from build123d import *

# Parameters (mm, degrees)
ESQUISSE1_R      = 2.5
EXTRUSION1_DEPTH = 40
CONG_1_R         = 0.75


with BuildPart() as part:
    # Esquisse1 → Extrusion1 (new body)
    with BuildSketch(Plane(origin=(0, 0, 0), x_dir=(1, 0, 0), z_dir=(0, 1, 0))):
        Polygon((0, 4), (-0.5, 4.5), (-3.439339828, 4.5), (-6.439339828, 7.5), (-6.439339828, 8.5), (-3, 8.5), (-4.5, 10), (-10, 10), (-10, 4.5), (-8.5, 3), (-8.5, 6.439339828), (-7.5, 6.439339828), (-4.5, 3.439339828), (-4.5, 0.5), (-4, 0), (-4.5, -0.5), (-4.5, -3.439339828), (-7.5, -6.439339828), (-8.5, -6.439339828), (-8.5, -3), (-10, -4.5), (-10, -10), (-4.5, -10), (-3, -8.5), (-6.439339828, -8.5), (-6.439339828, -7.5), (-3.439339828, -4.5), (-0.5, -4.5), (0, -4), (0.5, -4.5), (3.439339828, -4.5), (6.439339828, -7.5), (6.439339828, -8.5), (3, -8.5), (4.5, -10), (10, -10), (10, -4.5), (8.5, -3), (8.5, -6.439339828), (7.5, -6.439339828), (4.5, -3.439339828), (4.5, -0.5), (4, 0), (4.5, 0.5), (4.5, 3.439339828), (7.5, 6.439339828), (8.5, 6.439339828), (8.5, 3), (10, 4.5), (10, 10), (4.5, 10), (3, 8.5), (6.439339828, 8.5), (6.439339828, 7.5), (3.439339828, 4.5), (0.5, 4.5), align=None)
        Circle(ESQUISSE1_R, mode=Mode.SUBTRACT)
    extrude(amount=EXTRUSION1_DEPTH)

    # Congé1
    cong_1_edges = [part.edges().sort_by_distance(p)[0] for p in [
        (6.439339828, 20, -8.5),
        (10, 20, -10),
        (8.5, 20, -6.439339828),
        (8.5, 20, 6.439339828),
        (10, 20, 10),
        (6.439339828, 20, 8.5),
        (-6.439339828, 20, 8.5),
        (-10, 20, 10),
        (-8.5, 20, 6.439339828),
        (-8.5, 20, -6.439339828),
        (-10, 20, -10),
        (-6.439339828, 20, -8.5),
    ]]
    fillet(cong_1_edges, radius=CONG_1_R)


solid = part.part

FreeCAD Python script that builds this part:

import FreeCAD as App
import Part
import Sketcher
from FreeCAD import Vector
Q = App.Units.Quantity


def edges_at(feature, points):
    """Names of the edges that pass closest to the given points."""
    edges = feature.Shape.Edges
    near = lambda p: min(range(len(edges)), key=lambda i: edges[i].distToShape(Part.Vertex(*p))[0])
    return sorted({f"Edge{near(p) + 1}" for p in points})

doc = App.newDocument("Part")
body = doc.addObject("PartDesign::Body", "Body")

sketch1 = body.newObject("Sketcher::SketchObject", "Sketch")
sketch1.AttachmentSupport = (doc.getObject("XZ_Plane"), [""])
sketch1.MapMode = "FlatFace"
sketch1.addGeometry([
    Part.LineSegment(Vector(0, -4, 0), Vector(-0.5, -4.5, 0)),
    Part.LineSegment(Vector(-0.5, -4.5, 0), Vector(-3.4, -4.5, 0)),
    Part.LineSegment(Vector(-3.4, -4.5, 0), Vector(-6.4, -7.5, 0)),
    Part.LineSegment(Vector(-6.4, -7.5, 0), Vector(-6.4, -8.5, 0)),
    Part.LineSegment(Vector(-6.4, -8.5, 0), Vector(-3, -8.5, 0)),
    Part.LineSegment(Vector(-3, -8.5, 0), Vector(-4.5, -10, 0)),
    Part.LineSegment(Vector(-4.5, -10, 0), Vector(-10, -10, 0)),
    Part.LineSegment(Vector(-10, -10, 0), Vector(-10, -4.5, 0)),
    Part.LineSegment(Vector(-10, -4.5, 0), Vector(-8.5, -3, 0)),
    Part.LineSegment(Vector(-8.5, -3, 0), Vector(-8.5, -6.4, 0)),
    Part.LineSegment(Vector(-8.5, -6.4, 0), Vector(-7.5, -6.4, 0)),
    Part.LineSegment(Vector(-7.5, -6.4, 0), Vector(-4.5, -3.4, 0)),
    Part.LineSegment(Vector(-4.5, -3.4, 0), Vector(-4.5, -0.5, 0)),
    Part.LineSegment(Vector(-4.5, -0.5, 0), Vector(-4, 0, 0)),
    Part.LineSegment(Vector(-4, 0, 0), Vector(-4.5, 0.5, 0)),
    Part.LineSegment(Vector(-4.5, 0.5, 0), Vector(-4.5, 3.4, 0)),
    Part.LineSegment(Vector(-4.5, 3.4, 0), Vector(-7.5, 6.4, 0)),
    Part.LineSegment(Vector(-7.5, 6.4, 0), Vector(-8.5, 6.4, 0)),
    Part.LineSegment(Vector(-8.5, 6.4, 0), Vector(-8.5, 3, 0)),
    Part.LineSegment(Vector(-8.5, 3, 0), Vector(-10, 4.5, 0)),
    Part.LineSegment(Vector(-10, 4.5, 0), Vector(-10, 10, 0)),
    Part.LineSegment(Vector(-10, 10, 0), Vector(-4.5, 10, 0)),
    Part.LineSegment(Vector(-4.5, 10, 0), Vector(-3, 8.5, 0)),
    Part.LineSegment(Vector(-3, 8.5, 0), Vector(-6.4, 8.5, 0)),
    Part.LineSegment(Vector(-6.4, 8.5, 0), Vector(-6.4, 7.5, 0)),
    Part.LineSegment(Vector(-6.4, 7.5, 0), Vector(-3.4, 4.5, 0)),
    Part.LineSegment(Vector(-3.4, 4.5, 0), Vector(-0.5, 4.5, 0)),
    Part.LineSegment(Vector(-0.5, 4.5, 0), Vector(0, 4, 0)),
    Part.LineSegment(Vector(0, 4, 0), Vector(0.5, 4.5, 0)),
    Part.LineSegment(Vector(0.5, 4.5, 0), Vector(3.4, 4.5, 0)),
    Part.LineSegment(Vector(3.4, 4.5, 0), Vector(6.4, 7.5, 0)),
    Part.LineSegment(Vector(6.4, 7.5, 0), Vector(6.4, 8.5, 0)),
    Part.LineSegment(Vector(6.4, 8.5, 0), Vector(3, 8.5, 0)),
    Part.LineSegment(Vector(3, 8.5, 0), Vector(4.5, 10, 0)),
    Part.LineSegment(Vector(4.5, 10, 0), Vector(10, 10, 0)),
    Part.LineSegment(Vector(10, 10, 0), Vector(10, 4.5, 0)),
    Part.LineSegment(Vector(10, 4.5, 0), Vector(8.5, 3, 0)),
    Part.LineSegment(Vector(8.5, 3, 0), Vector(8.5, 6.4, 0)),
    Part.LineSegment(Vector(8.5, 6.4, 0), Vector(7.5, 6.4, 0)),
    Part.LineSegment(Vector(7.5, 6.4, 0), Vector(4.5, 3.4, 0)),
    Part.LineSegment(Vector(4.5, 3.4, 0), Vector(4.5, 0.5, 0)),
    Part.LineSegment(Vector(4.5, 0.5, 0), Vector(4, 0, 0)),
    Part.LineSegment(Vector(4, 0, 0), Vector(4.5, -0.5, 0)),
    Part.LineSegment(Vector(4.5, -0.5, 0), Vector(4.5, -3.4, 0)),
    Part.LineSegment(Vector(4.5, -3.4, 0), Vector(7.5, -6.4, 0)),
    Part.LineSegment(Vector(7.5, -6.4, 0), Vector(8.5, -6.4, 0)),
    Part.LineSegment(Vector(8.5, -6.4, 0), Vector(8.5, -3, 0)),
    Part.LineSegment(Vector(8.5, -3, 0), Vector(10, -4.5, 0)),
    Part.LineSegment(Vector(10, -4.5, 0), Vector(10, -10, 0)),
    Part.LineSegment(Vector(10, -10, 0), Vector(4.5, -10, 0)),
    Part.LineSegment(Vector(4.5, -10, 0), Vector(3, -8.5, 0)),
    Part.LineSegment(Vector(3, -8.5, 0), Vector(6.4, -8.5, 0)),
    Part.LineSegment(Vector(6.4, -8.5, 0), Vector(6.4, -7.5, 0)),
    Part.LineSegment(Vector(6.4, -7.5, 0), Vector(3.4, -4.5, 0)),
    Part.LineSegment(Vector(3.4, -4.5, 0), Vector(0.5, -4.5, 0)),
    Part.LineSegment(Vector(0.5, -4.5, 0), Vector(0, -4, 0)),
    Part.Circle(Vector(0, 0, 0), Vector(0, 0, 1), 2.5),
], False)
sketch1.addConstraint([
    Sketcher.Constraint("Coincident", 0, 2, 1, 1),
    Sketcher.Constraint("Coincident", 1, 2, 2, 1),
    Sketcher.Constraint("Coincident", 2, 2, 3, 1),
    Sketcher.Constraint("Coincident", 3, 2, 4, 1),
    Sketcher.Constraint("Coincident", 4, 2, 5, 1),
    Sketcher.Constraint("Coincident", 5, 2, 6, 1),
    Sketcher.Constraint("Coincident", 6, 2, 7, 1),
    Sketcher.Constraint("Coincident", 7, 2, 8, 1),
    Sketcher.Constraint("Coincident", 8, 2, 9, 1),
    Sketcher.Constraint("Coincident", 9, 2, 10, 1),
    Sketcher.Constraint("Coincident", 10, 2, 11, 1),
    Sketcher.Constraint("Coincident", 11, 2, 12, 1),
    Sketcher.Constraint("Coincident", 12, 2, 13, 1),
    Sketcher.Constraint("Coincident", 13, 2, 14, 1),
    Sketcher.Constraint("Coincident", 14, 2, 15, 1),
    Sketcher.Constraint("Coincident", 15, 2, 16, 1),
    Sketcher.Constraint("Coincident", 16, 2, 17, 1),
    Sketcher.Constraint("Coincident", 17, 2, 18, 1),
    Sketcher.Constraint("Coincident", 18, 2, 19, 1),
    Sketcher.Constraint("Coincident", 19, 2, 20, 1),
    Sketcher.Constraint("Coincident", 20, 2, 21, 1),
    Sketcher.Constraint("Coincident", 21, 2, 22, 1),
    Sketcher.Constraint("Coincident", 22, 2, 23, 1),
    Sketcher.Constraint("Coincident", 23, 2, 24, 1),
    Sketcher.Constraint("Coincident", 24, 2, 25, 1),
    Sketcher.Constraint("Coincident", 25, 2, 26, 1),
    Sketcher.Constraint("Coincident", 26, 2, 27, 1),
    Sketcher.Constraint("Coincident", 27, 2, 28, 1),
    Sketcher.Constraint("Coincident", 28, 2, 29, 1),
    Sketcher.Constraint("Coincident", 29, 2, 30, 1),
    Sketcher.Constraint("Coincident", 30, 2, 31, 1),
    Sketcher.Constraint("Coincident", 31, 2, 32, 1),
    Sketcher.Constraint("Coincident", 32, 2, 33, 1),
    Sketcher.Constraint("Coincident", 33, 2, 34, 1),
    Sketcher.Constraint("Coincident", 34, 2, 35, 1),
    Sketcher.Constraint("Coincident", 35, 2, 36, 1),
    Sketcher.Constraint("Coincident", 36, 2, 37, 1),
    Sketcher.Constraint("Coincident", 37, 2, 38, 1),
    Sketcher.Constraint("Coincident", 38, 2, 39, 1),
    Sketcher.Constraint("Coincident", 39, 2, 40, 1),
    Sketcher.Constraint("Coincident", 40, 2, 41, 1),
    Sketcher.Constraint("Coincident", 41, 2, 42, 1),
    Sketcher.Constraint("Coincident", 42, 2, 43, 1),
    Sketcher.Constraint("Coincident", 43, 2, 44, 1),
    Sketcher.Constraint("Coincident", 44, 2, 45, 1),
    Sketcher.Constraint("Coincident", 45, 2, 46, 1),
    Sketcher.Constraint("Coincident", 46, 2, 47, 1),
    Sketcher.Constraint("Coincident", 47, 2, 48, 1),
    Sketcher.Constraint("Coincident", 48, 2, 49, 1),
    Sketcher.Constraint("Coincident", 49, 2, 50, 1),
    Sketcher.Constraint("Coincident", 50, 2, 51, 1),
    Sketcher.Constraint("Coincident", 51, 2, 52, 1),
    Sketcher.Constraint("Coincident", 52, 2, 53, 1),
    Sketcher.Constraint("Coincident", 53, 2, 54, 1),
    Sketcher.Constraint("Coincident", 54, 2, 55, 1),
    Sketcher.Constraint("Coincident", 55, 2, 0, 1),
    Sketcher.Constraint("Horizontal", 1),
    Sketcher.Constraint("Vertical", 3),
    Sketcher.Constraint("Horizontal", 4),
    Sketcher.Constraint("Horizontal", 6),
    Sketcher.Constraint("Vertical", 7),
    Sketcher.Constraint("Vertical", 9),
    Sketcher.Constraint("Horizontal", 10),
    Sketcher.Constraint("Vertical", 12),
    Sketcher.Constraint("Vertical", 15),
    Sketcher.Constraint("Horizontal", 17),
    Sketcher.Constraint("Vertical", 18),
    Sketcher.Constraint("Vertical", 20),
    Sketcher.Constraint("Horizontal", 21),
    Sketcher.Constraint("Horizontal", 23),
    Sketcher.Constraint("Vertical", 24),
    Sketcher.Constraint("Horizontal", 26),
    Sketcher.Constraint("Horizontal", 29),
    Sketcher.Constraint("Vertical", 31),
    Sketcher.Constraint("Horizontal", 32),
    Sketcher.Constraint("Horizontal", 34),
    Sketcher.Constraint("Vertical", 35),
    Sketcher.Constraint("Vertical", 37),
    Sketcher.Constraint("Horizontal", 38),
    Sketcher.Constraint("Vertical", 40),
    Sketcher.Constraint("Vertical", 43),
    Sketcher.Constraint("Horizontal", 45),
    Sketcher.Constraint("Vertical", 46),
    Sketcher.Constraint("Vertical", 48),
    Sketcher.Constraint("Horizontal", 49),
    Sketcher.Constraint("Horizontal", 51),
    Sketcher.Constraint("Vertical", 52),
    Sketcher.Constraint("Horizontal", 54),
    Sketcher.Constraint("Coincident", 56, 3, -1, 1),
    Sketcher.Constraint("Symmetric", 0, 2, 28, 2, -1, 1),
    Sketcher.Constraint("Symmetric", 2, 2, 30, 2, -1, 1),
    Sketcher.Constraint("Symmetric", 4, 2, 32, 2, -1, 1),
    Sketcher.Constraint("Symmetric", 5, 2, 33, 2, -1, 1),
    Sketcher.Constraint("Symmetric", 7, 2, 35, 2, -1, 1),
    Sketcher.Constraint("Symmetric", 8, 2, 36, 2, -1, 1),
    Sketcher.Constraint("Symmetric", 10, 2, 38, 2, -1, 1),
    Sketcher.Constraint("Symmetric", 11, 2, 39, 2, -1, 1),
    Sketcher.Constraint("Symmetric", 13, 2, 41, 2, -1, 1),
    Sketcher.Constraint("Symmetric", 14, 2, 42, 2, -1, 1),
    Sketcher.Constraint("Symmetric", 16, 2, 44, 2, -1, 1),
    Sketcher.Constraint("Symmetric", 18, 2, 46, 2, -1, 1),
    Sketcher.Constraint("Symmetric", 19, 2, 47, 2, -1, 1),
    Sketcher.Constraint("Symmetric", 21, 2, 49, 2, -1, 1),
    Sketcher.Constraint("Symmetric", 22, 2, 50, 2, -1, 1),
    Sketcher.Constraint("Symmetric", 24, 2, 52, 2, -1, 1),
    Sketcher.Constraint("Symmetric", 25, 2, 53, 2, -1, 1),
    Sketcher.Constraint("Symmetric", 27, 2, 55, 2, -1, 1),
    Sketcher.Constraint("Symmetric", 26, 2, 28, 2, -2),
    Sketcher.Constraint("Symmetric", 24, 2, 30, 2, -2),
    Sketcher.Constraint("Symmetric", 22, 2, 32, 2, -2),
    Sketcher.Constraint("Symmetric", 21, 2, 33, 2, -2),
    Sketcher.Constraint("Symmetric", 19, 2, 35, 2, -2),
    Sketcher.Constraint("Symmetric", 18, 2, 36, 2, -2),
    Sketcher.Constraint("Symmetric", 16, 2, 38, 2, -2),
    Sketcher.Constraint("Symmetric", 15, 2, 39, 2, -2),
    Sketcher.Constraint("PointOnObject", 13, 2, -1),
    Sketcher.Constraint("PointOnObject", 27, 2, -2),
    Sketcher.Constraint("Parallel", 0, 2),
    Sketcher.Constraint("Parallel", 2, 5),
    Sketcher.Constraint("Parallel", 5, 8),
    Sketcher.Constraint("Parallel", 8, 11),
    Sketcher.Constraint("Parallel", 11, 13),
    Sketcher.Constraint("Perpendicular", 13, 14),
    Sketcher.Constraint("Parallel", 14, 16),
    Sketcher.Constraint("Parallel", 22, 25),
    Sketcher.Constraint("Parallel", 28, 30),
    Sketcher.Constraint("Parallel", 39, 41),
    Sketcher.Constraint("Parallel", 42, 44),
    Sketcher.Constraint("Parallel", 53, 55),
    Sketcher.Constraint("Horizontal", 1, 2, 7, 2),
    Sketcher.Constraint("Vertical", 5, 2, 11, 2),
    Sketcher.Constraint("Equal", 45, 3),
    Sketcher.Constraint("Equal", 49, 7),
    Sketcher.Constraint("Equal", 51, 9),
    Sketcher.Constraint("Equal", 54, 12),
    Sketcher.Constraint("Equal", 5, 8),
    Sketcher.Constraint("Equal", 0, 13),
    Sketcher.Constraint("Diameter", 56, Q("5 mm")),
    Sketcher.Constraint("DistanceX", 10, 1, 10, 2, Q("1 mm")),
    Sketcher.Constraint("DistanceX", 6, 2, 6, 1, Q("5.5 mm")),
    Sketcher.Constraint("DistanceX", 4, 2, -1, 1, Q("3 mm")),
    Sketcher.Constraint("DistanceY", 5, 2, -1, 1, Q("10 mm")),
    Sketcher.Constraint("DistanceX", 13, 2, -1, 1, Q("4 mm")),
    Sketcher.Constraint("DistanceX", 1, 2, 1, 1, Q("2.93934 mm")),
])
pad1 = body.newObject("PartDesign::Pad", "Pad")
pad1.Profile = sketch1
pad1.Length = 40
pad1.Reversed = True
doc.recompute()

fillet = body.newObject("PartDesign::Fillet", "Fillet")
fillet.Base = (pad1, edges_at(pad1, [
    (6.439, 20, -8.5),
    (10, 20, -10),
    (8.5, 20, -6.439),
    (8.5, 20, 6.439),
    (10, 20, 10),
    (6.439, 20, 8.5),
    (-6.439, 20, 8.5),
    (-10, 20, 10),
    (-8.5, 20, 6.439),
    (-8.5, 20, -6.439),
    (-10, 20, -10),
    (-6.439, 20, -8.5),
]))
fillet.Radius = 0.75

doc.recompute()
